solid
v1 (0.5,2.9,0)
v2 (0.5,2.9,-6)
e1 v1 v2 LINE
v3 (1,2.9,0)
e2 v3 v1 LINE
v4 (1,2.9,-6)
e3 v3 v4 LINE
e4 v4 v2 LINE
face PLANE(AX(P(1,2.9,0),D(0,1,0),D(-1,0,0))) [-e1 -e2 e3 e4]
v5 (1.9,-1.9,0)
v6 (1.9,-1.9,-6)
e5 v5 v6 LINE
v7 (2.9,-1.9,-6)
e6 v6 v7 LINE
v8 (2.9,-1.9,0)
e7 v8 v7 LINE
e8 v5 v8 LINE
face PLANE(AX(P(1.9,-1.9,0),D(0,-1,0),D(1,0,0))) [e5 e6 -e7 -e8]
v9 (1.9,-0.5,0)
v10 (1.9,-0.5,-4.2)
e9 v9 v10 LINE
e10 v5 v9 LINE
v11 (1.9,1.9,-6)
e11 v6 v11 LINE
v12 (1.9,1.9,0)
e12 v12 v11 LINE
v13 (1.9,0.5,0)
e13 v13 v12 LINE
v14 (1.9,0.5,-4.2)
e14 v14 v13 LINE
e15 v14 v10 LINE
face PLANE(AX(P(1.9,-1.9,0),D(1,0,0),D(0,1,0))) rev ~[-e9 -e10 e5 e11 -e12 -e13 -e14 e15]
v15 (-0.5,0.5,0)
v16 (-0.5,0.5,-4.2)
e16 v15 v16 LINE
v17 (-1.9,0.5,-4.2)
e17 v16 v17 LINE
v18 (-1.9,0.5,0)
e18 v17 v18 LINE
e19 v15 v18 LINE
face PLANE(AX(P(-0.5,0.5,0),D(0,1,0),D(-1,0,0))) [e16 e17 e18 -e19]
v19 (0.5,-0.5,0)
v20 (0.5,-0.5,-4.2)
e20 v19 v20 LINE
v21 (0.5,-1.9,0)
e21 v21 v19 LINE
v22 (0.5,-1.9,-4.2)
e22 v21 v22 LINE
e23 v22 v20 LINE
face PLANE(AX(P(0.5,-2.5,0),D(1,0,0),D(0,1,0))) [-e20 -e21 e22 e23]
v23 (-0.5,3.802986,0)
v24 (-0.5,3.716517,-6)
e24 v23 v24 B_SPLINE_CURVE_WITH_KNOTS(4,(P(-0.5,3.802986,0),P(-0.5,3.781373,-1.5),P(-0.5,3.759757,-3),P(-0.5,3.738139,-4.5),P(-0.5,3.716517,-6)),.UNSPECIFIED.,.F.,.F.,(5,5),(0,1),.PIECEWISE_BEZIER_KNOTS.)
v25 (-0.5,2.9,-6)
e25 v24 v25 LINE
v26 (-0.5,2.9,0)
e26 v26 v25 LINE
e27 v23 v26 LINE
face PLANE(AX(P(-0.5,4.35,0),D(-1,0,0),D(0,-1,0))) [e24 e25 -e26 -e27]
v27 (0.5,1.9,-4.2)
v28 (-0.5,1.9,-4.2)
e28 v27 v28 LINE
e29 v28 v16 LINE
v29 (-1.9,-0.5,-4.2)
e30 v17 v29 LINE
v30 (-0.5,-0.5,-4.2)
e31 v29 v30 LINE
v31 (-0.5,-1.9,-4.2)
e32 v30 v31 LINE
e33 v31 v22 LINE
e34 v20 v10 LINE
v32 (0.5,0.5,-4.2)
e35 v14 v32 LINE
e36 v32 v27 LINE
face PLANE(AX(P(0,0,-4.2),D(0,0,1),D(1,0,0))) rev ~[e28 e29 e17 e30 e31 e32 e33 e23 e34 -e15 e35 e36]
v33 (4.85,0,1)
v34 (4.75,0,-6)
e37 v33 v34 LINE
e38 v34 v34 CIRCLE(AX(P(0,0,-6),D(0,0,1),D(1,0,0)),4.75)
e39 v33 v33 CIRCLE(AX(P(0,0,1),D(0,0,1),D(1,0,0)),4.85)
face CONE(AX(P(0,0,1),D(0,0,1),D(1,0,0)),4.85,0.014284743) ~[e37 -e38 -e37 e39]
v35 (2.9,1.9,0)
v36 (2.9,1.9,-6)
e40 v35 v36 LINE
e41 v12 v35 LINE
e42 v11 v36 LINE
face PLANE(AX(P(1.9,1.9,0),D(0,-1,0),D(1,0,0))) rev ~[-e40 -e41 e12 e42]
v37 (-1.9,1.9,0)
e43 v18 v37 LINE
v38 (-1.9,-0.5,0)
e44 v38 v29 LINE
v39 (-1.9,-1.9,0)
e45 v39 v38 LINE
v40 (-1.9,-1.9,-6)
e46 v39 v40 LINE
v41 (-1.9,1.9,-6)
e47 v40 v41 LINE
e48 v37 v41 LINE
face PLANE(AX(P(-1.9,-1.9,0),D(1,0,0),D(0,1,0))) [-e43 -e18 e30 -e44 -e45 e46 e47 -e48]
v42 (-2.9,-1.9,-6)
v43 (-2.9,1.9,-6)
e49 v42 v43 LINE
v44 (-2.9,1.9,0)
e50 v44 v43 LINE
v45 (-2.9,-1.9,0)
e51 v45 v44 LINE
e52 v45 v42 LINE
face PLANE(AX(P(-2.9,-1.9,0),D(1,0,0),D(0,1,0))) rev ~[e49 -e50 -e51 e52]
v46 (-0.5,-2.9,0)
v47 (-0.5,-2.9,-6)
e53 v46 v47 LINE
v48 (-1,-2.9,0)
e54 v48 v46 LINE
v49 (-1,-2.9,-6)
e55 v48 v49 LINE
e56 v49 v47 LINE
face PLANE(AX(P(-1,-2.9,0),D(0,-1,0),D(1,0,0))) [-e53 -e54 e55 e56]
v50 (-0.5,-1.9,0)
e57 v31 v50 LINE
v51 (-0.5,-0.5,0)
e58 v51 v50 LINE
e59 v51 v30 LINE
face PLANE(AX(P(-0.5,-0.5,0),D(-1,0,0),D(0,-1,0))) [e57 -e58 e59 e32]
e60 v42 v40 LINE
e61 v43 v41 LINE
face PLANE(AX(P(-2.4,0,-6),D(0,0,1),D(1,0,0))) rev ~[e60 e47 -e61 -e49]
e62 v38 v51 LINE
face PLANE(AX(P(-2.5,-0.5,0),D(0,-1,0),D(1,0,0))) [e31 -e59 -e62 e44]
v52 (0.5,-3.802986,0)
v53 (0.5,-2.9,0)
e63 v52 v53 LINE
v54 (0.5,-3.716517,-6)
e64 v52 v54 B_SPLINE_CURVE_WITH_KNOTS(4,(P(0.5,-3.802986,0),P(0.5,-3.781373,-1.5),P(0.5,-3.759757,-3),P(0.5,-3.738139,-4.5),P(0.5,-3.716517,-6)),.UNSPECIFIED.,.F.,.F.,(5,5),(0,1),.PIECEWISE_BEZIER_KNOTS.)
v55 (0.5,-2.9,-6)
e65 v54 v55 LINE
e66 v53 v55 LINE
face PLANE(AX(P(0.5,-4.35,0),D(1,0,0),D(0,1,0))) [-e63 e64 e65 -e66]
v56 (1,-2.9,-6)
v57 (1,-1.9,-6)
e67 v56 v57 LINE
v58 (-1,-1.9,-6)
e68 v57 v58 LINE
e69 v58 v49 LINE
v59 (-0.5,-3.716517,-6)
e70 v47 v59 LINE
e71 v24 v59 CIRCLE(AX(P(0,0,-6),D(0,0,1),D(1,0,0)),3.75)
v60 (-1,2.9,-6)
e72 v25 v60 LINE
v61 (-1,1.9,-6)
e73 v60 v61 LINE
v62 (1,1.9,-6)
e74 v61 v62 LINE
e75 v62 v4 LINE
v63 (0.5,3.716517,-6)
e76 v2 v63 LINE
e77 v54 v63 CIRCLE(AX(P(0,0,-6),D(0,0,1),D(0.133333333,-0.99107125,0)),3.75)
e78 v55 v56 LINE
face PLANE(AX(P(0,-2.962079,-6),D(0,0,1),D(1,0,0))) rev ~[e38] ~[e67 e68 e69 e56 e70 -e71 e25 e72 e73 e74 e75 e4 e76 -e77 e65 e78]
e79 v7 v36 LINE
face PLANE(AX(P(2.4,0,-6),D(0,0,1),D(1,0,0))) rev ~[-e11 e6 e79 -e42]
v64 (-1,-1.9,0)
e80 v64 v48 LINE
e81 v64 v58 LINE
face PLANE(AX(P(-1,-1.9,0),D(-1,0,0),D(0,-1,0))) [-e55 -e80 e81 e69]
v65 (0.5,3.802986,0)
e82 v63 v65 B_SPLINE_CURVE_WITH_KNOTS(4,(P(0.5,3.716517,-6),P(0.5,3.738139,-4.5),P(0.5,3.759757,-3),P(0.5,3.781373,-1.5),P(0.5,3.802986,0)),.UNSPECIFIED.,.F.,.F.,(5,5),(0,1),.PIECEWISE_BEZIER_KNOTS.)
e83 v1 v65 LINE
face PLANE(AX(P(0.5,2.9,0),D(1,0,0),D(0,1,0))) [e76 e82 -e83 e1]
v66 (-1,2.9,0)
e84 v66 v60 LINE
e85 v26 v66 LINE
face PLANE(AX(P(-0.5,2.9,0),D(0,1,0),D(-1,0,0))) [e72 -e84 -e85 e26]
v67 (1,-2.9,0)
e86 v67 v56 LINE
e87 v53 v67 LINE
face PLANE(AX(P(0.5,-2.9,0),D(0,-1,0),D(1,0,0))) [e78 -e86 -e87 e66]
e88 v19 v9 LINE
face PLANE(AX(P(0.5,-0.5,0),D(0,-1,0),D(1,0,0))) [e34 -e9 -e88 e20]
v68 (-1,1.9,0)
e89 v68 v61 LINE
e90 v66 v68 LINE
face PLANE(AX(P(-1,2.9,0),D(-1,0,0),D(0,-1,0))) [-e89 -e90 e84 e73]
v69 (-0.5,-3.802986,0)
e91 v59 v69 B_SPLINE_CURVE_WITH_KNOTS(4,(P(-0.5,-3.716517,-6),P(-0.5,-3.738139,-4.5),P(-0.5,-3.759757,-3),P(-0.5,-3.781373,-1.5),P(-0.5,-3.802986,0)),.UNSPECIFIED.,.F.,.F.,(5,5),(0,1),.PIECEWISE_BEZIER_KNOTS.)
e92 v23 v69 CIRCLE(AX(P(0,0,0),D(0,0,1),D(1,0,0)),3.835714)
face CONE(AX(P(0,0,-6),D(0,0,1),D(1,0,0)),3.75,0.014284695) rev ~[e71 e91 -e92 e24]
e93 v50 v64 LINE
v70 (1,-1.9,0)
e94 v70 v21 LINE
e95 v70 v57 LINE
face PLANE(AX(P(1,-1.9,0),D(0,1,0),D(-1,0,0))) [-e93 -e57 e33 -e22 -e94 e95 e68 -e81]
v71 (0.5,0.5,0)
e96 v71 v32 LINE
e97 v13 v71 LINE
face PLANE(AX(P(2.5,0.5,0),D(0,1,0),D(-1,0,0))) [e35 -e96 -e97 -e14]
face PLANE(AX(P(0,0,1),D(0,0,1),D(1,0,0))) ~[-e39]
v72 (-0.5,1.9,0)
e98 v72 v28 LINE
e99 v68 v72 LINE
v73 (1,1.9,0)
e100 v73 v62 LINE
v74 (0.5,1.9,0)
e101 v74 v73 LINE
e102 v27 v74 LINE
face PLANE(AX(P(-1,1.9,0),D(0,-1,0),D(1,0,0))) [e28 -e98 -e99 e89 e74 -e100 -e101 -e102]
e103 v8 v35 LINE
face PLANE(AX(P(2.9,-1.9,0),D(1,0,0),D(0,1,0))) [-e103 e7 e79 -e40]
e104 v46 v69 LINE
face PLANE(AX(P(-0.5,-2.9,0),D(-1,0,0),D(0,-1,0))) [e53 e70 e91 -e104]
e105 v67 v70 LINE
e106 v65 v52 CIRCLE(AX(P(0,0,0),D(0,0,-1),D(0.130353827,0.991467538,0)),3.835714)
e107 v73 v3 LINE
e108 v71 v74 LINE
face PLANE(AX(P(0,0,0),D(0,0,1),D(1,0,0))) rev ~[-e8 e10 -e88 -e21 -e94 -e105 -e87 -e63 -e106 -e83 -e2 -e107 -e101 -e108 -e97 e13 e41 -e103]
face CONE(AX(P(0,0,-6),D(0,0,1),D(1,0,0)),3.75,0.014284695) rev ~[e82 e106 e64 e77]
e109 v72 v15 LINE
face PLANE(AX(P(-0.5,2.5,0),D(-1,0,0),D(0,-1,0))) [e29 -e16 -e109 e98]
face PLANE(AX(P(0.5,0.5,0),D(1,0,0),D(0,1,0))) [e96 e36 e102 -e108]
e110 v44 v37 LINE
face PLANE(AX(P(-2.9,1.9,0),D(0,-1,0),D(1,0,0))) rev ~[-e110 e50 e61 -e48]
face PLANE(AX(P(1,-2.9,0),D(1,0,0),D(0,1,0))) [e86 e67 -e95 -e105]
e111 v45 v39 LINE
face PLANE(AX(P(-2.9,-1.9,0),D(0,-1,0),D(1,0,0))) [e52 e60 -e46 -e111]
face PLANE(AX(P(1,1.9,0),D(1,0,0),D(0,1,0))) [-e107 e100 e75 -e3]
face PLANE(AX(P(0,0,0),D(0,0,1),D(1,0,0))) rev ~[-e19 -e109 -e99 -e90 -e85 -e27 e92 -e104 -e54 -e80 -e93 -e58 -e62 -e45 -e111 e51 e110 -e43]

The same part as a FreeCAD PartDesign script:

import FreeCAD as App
import Part
import Sketcher

V = App.Vector


def add_polygon(sketch, points):
    """Adds a closed chain of lines whose ends are joined by coincident constraints."""
    first, n = sketch.GeometryCount, len(points)
    for a, b in zip(points, points[1:] + points[:1]):
        sketch.addGeometry(Part.LineSegment(App.Vector(*a, 0), App.Vector(*b, 0)), False)
    for i in range(n):
        sketch.addConstraint(Sketcher.Constraint("Coincident", first + i, 2, first + (i + 1) % n, 1))

doc = App.newDocument("Part")
body = doc.addObject("PartDesign::Body", "Body")

sketch1 = doc.addObject("Sketcher::SketchObject", "Sketch")
body.addObject(sketch1)
sketch1.AttachmentSupport = (doc.XZ_Plane, [""])
sketch1.MapMode = "FlatFace"
add_polygon(sketch1, [(4.85, 1), (0, 1), (0, 0), (3.835714, 0), (3.75, -6), (4.75, -6)])
sketch1.addConstraint(Sketcher.Constraint("Horizontal", 0))
sketch1.addConstraint(Sketcher.Constraint("Vertical", 1))
sketch1.addConstraint(Sketcher.Constraint("Horizontal", 2))
sketch1.addConstraint(Sketcher.Constraint("Horizontal", 4))
sketch1.addConstraint(Sketcher.Constraint("Coincident", 1, 2, -1, 1))
sketch1.addConstraint(Sketcher.Constraint("Parallel", 3, 5))
sketch1.addConstraint(Sketcher.Constraint("Equal", 4, 1))
sketch1.addConstraint(Sketcher.Constraint("DistanceX", 4, 1, 4, 2, 1.0))
sketch1.addConstraint(Sketcher.Constraint("DistanceY", 3, 2, -1, 1, 6.0))
sketch1.addConstraint(Sketcher.Constraint("DistanceX", 0, 2, 0, 1, 4.85))
sketch1.addConstraint(Sketcher.Constraint("DistanceX", 4, 2, 5, 2, 0.1))
revolution = doc.addObject("PartDesign::Revolution", "Revolution")
body.addObject(revolution)
revolution.Profile = sketch1
revolution.ReferenceAxis = (sketch1, ["V_Axis"])
revolution.Angle = 360

sketch2 = doc.addObject("Sketcher::SketchObject", "Sketch001")
body.addObject(sketch2)
sketch2.AttachmentSupport = (doc.XY_Plane, [""])
sketch2.MapMode = "FlatFace"
add_polygon(sketch2, [(-1, -1.9), (-1, -2.9), (-0.5, -2.9), (-0.5, -4.35), (0.5, -4.35), (0.5, -2.9), (1, -2.9), (1, -1.9)])
add_polygon(sketch2, [(-1, 2.9), (-1, 1.9), (1, 1.9), (1, 2.9), (0.5, 2.9), (0.5, 4.35), (-0.5, 4.35), (-0.5, 2.9)])
add_polygon(sketch2, [(1.9, 1.9), (1.9, -1.9), (2.9, -1.9), (2.9, 1.9)])
add_polygon(sketch2, [(-2.9, 1.9), (-2.9, -1.9), (-1.9, -1.9), (-1.9, 1.9)])
sketch2.addConstraint(Sketcher.Constraint("Vertical", 0))
sketch2.addConstraint(Sketcher.Constraint("Horizontal", 1))
sketch2.addConstraint(Sketcher.Constraint("Vertical", 2))
sketch2.addConstraint(Sketcher.Constraint("Horizontal", 3))
sketch2.addConstraint(Sketcher.Constraint("Vertical", 4))
sketch2.addConstraint(Sketcher.Constraint("Horizontal", 5))
sketch2.addConstraint(Sketcher.Constraint("Vertical", 6))
sketch2.addConstraint(Sketcher.Constraint("Horizontal", 7))
sketch2.addConstraint(Sketcher.Constraint("Vertical", 8))
sketch2.addConstraint(Sketcher.Constraint("Horizontal", 9))
sketch2.addConstraint(Sketcher.Constraint("Vertical", 10))
sketch2.addConstraint(Sketcher.Constraint("Horizontal", 11))
sketch2.addConstraint(Sketcher.Constraint("Vertical", 12))
sketch2.addConstraint(Sketcher.Constraint("Horizontal", 13))
sketch2.addConstraint(Sketcher.Constraint("Vertical", 14))
sketch2.addConstraint(Sketcher.Constraint("Horizontal", 15))
sketch2.addConstraint(Sketcher.Constraint("Vertical", 16))
sketch2.addConstraint(Sketcher.Constraint("Horizontal", 17))
sketch2.addConstraint(Sketcher.Constraint("Vertical", 18))
sketch2.addConstraint(Sketcher.Constraint("Horizontal", 19))
sketch2.addConstraint(Sketcher.Constraint("Vertical", 20))
sketch2.addConstraint(Sketcher.Constraint("Horizontal", 21))
sketch2.addConstraint(Sketcher.Constraint("Vertical", 22))
sketch2.addConstraint(Sketcher.Constraint("Horizontal", 23))
sketch2.addConstraint(Sketcher.Constraint("Symmetric", 6, 2, 8, 2, -1, 1))
sketch2.addConstraint(Sketcher.Constraint("Symmetric", 0, 2, 10, 2, -1, 1))
sketch2.addConstraint(Sketcher.Constraint("Symmetric", 2, 2, 12, 2, -1, 1))
sketch2.addConstraint(Sketcher.Constraint("Symmetric", 4, 2, 14, 2, -1, 1))
sketch2.addConstraint(Sketcher.Constraint("Symmetric", 18, 2, 20, 2, -1, 1))
sketch2.addConstraint(Sketcher.Constraint("Symmetric", 16, 2, 22, 2, -1, 1))
sketch2.addConstraint(Sketcher.Constraint("Symmetric", 1, 2, 4, 2, -2))
sketch2.addConstraint(Sketcher.Constraint("Horizontal", 7, 2, 16, 2))
sketch2.addConstraint(Sketcher.Constraint("Horizontal", 9, 2, 18, 2))
sketch2.addConstraint(Sketcher.Constraint("Vertical", 7, 2, 8, 2))
sketch2.addConstraint(Sketcher.Constraint("Equal", 13, 17))
sketch2.addConstraint(Sketcher.Constraint("Equal", 23, 0))
sketch2.addConstraint(Sketcher.Constraint("DistanceX", 3, 1, 3, 2, 1.0))
sketch2.addConstraint(Sketcher.Constraint("DistanceX", 7, 2, 7, 1, 2.0))
sketch2.addConstraint(Sketcher.Constraint("DistanceY", 16, 2, 16, 1, 3.8))
sketch2.addConstraint(Sketcher.Constraint("DistanceY", 2, 2, 2, 1, 1.45))
sketch2.addConstraint(Sketcher.Constraint("DistanceX", -1, 1, 16, 2, 1.9))
pad1 = doc.addObject("PartDesign::Pad", "Pad")
body.addObject(pad1)
pad1.Profile = sketch2
pad1.Length = 6
pad1.Reversed = True

sketch3 = doc.addObject("Sketcher::SketchObject", "Sketch002")
body.addObject(sketch3)
sketch3.AttachmentSupport = (doc.XY_Plane, [""])
sketch3.MapMode = "FlatFace"
add_polygon(sketch3, [(-0.5, 2.5), (-0.5, 0.5), (-2.5, 0.5), (-2.5, -0.5), (-0.5, -0.5), (-0.5, -2.5), (0.5, -2.5), (0.5, -0.5), (2.5, -0.5), (2.5, 0.5), (0.5, 0.5), (0.5, 2.5)])
sketch3.addConstraint(Sketcher.Constraint("Vertical", 0))
sketch3.addConstraint(Sketcher.Constraint("Horizontal", 1))
sketch3.addConstraint(Sketcher.Constraint("Vertical", 2))
sketch3.addConstraint(Sketcher.Constraint("Horizontal", 3))
sketch3.addConstraint(Sketcher.Constraint("Vertical", 4))
sketch3.addConstraint(Sketcher.Constraint("Horizontal", 5))
sketch3.addConstraint(Sketcher.Constraint("Vertical", 6))
sketch3.addConstraint(Sketcher.Constraint("Horizontal", 7))
sketch3.addConstraint(Sketcher.Constraint("Vertical", 8))
sketch3.addConstraint(Sketcher.Constraint("Horizontal", 9))
sketch3.addConstraint(Sketcher.Constraint("Vertical", 10))
sketch3.addConstraint(Sketcher.Constraint("Horizontal", 11))
sketch3.addConstraint(Sketcher.Constraint("Symmetric", 0, 2, 6, 2, -1, 1))
sketch3.addConstraint(Sketcher.Constraint("Symmetric", 2, 2, 8, 2, -1, 1))
sketch3.addConstraint(Sketcher.Constraint("Symmetric", 4, 2, 10, 2, -1, 1))
sketch3.addConstraint(Sketcher.Constraint("Symmetric", 3, 2, 6, 2, -2))
sketch3.addConstraint(Sketcher.Constraint("Equal", 9, 0))
sketch3.addConstraint(Sketcher.Constraint("Equal", 11, 2))
sketch3.addConstraint(Sketcher.Constraint("DistanceX", 1, 2, 1, 1, 2.0))
sketch3.addConstraint(Sketcher.Constraint("DistanceX", 5, 1, 5, 2, 1.0))
pad2 = doc.addObject("PartDesign::Pad", "Pad001")
body.addObject(pad2)
pad2.Profile = sketch3
pad2.Length = 4.2
pad2.Reversed = True

doc.recompute()
